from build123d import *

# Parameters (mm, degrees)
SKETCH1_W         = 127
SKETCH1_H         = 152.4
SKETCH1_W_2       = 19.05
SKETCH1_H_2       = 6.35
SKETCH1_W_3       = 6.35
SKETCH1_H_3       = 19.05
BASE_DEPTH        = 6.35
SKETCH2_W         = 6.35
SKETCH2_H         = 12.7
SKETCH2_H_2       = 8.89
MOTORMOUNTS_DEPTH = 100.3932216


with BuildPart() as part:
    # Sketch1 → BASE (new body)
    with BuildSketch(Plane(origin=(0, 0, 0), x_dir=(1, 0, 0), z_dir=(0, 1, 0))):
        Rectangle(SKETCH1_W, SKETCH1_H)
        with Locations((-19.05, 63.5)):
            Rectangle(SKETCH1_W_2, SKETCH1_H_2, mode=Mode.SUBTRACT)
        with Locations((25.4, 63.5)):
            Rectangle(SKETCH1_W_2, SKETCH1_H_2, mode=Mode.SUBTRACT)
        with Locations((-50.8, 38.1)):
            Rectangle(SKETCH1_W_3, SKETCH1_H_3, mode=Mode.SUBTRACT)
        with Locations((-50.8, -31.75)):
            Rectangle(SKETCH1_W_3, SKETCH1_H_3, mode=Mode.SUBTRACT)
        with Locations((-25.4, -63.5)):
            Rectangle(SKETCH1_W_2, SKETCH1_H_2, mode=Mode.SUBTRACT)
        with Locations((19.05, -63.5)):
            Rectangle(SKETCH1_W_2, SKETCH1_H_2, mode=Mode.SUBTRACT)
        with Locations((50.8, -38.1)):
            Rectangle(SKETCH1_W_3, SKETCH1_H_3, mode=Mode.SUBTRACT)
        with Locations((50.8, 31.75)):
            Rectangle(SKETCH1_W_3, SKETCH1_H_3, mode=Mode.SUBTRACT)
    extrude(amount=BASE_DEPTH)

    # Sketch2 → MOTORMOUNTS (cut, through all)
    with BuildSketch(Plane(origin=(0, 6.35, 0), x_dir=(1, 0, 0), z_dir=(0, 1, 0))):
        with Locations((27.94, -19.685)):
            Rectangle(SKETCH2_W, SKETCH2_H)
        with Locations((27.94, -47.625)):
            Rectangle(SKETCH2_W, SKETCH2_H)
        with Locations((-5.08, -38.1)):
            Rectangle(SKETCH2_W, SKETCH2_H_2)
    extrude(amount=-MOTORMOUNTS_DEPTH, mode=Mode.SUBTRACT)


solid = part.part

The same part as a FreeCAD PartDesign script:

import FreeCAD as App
import Part
import Sketcher
Q = App.Units.Quantity

doc = App.newDocument("Part")
body = doc.addObject("PartDesign::Body", "Body")

# Sketch on XZ plane
sketch1 = body.newObject("Sketcher::SketchObject", "Sketch")
sketch1.AttachmentSupport = (doc.getObject("XZ_Plane"), [""])
sketch1.MapMode = "FlatFace"
sketch1.addGeometry(Part.LineSegment(App.Vector(-64, -76, 0), App.Vector(-64, 76, 0)), False)
sketch1.addGeometry(Part.LineSegment(App.Vector(-64, 76, 0), App.Vector(64, 76, 0)), False)
sketch1.addGeometry(Part.LineSegment(App.Vector(64, 76, 0), App.Vector(64, -76, 0)), False)
sketch1.addGeometry(Part.LineSegment(App.Vector(64, -76, 0), App.Vector(-64, -76, 0)), False)
sketch1.addGeometry(Part.LineSegment(App.Vector(-16, 67, 0), App.Vector(-35, 67, 0)), False)
sketch1.addGeometry(Part.LineSegment(App.Vector(-35, 67, 0), App.Vector(-35, 60, 0)), False)
sketch1.addGeometry(Part.LineSegment(App.Vector(-35, 60, 0), App.Vector(-16, 60, 0)), False)
sketch1.addGeometry(Part.LineSegment(App.Vector(-16, 60, 0), App.Vector(-16, 67, 0)), False)
sketch1.addGeometry(Part.LineSegment(App.Vector(-48, 41, 0), App.Vector(-54, 41, 0)), False)
sketch1.addGeometry(Part.LineSegment(App.Vector(-54, 41, 0), App.Vector(-54, 22, 0)), False)
sketch1.addGeometry(Part.LineSegment(App.Vector(-54, 22, 0), App.Vector(-48, 22, 0)), False)
sketch1.addGeometry(Part.LineSegment(App.Vector(-48, 22, 0), App.Vector(-48, 41, 0)), False)
sketch1.addGeometry(Part.LineSegment(App.Vector(29, 67, 0), App.Vector(10, 67, 0)), False)
sketch1.addGeometry(Part.LineSegment(App.Vector(10, 67, 0), App.Vector(10, 60, 0)), False)
sketch1.addGeometry(Part.LineSegment(App.Vector(10, 60, 0), App.Vector(29, 60, 0)), False)
sketch1.addGeometry(Part.LineSegment(App.Vector(29, 60, 0), App.Vector(29, 67, 0)), False)
sketch1.addGeometry(Part.LineSegment(App.Vector(54, 48, 0), App.Vector(48, 48, 0)), False)
sketch1.addGeometry(Part.LineSegment(App.Vector(48, 48, 0), App.Vector(48, 29, 0)), False)
sketch1.addGeometry(Part.LineSegment(App.Vector(48, 29, 0), App.Vector(54, 29, 0)), False)
sketch1.addGeometry(Part.LineSegment(App.Vector(54, 29, 0), App.Vector(54, 48, 0)), False)
sketch1.addGeometry(Part.LineSegment(App.Vector(-48, -29, 0), App.Vector(-54, -29, 0)), False)
sketch1.addGeometry(Part.LineSegment(App.Vector(-54, -29, 0), App.Vector(-54, -48, 0)), False)
sketch1.addGeometry(Part.LineSegment(App.Vector(-54, -48, 0), App.Vector(-48, -48, 0)), False)
sketch1.addGeometry(Part.LineSegment(App.Vector(-48, -48, 0), App.Vector(-48, -29, 0)), False)
sketch1.addGeometry(Part.LineSegment(App.Vector(-10, -60, 0), App.Vector(-29, -60, 0)), False)
sketch1.addGeometry(Part.LineSegment(App.Vector(-29, -60, 0), App.Vector(-29, -67, 0)), False)
sketch1.addGeometry(Part.LineSegment(App.Vector(-29, -67, 0), App.Vector(-10, -67, 0)), False)
sketch1.addGeometry(Part.LineSegment(App.Vector(-10, -67, 0), App.Vector(-10, -60, 0)), False)
sketch1.addGeometry(Part.LineSegment(App.Vector(54, -22, 0), App.Vector(48, -22, 0)), False)
sketch1.addGeometry(Part.LineSegment(App.Vector(48, -22, 0), App.Vector(48, -41, 0)), False)
sketch1.addGeometry(Part.LineSegment(App.Vector(48, -41, 0), App.Vector(54, -41, 0)), False)
sketch1.addGeometry(Part.LineSegment(App.Vector(54, -41, 0), App.Vector(54, -22, 0)), False)
sketch1.addGeometry(Part.LineSegment(App.Vector(35, -60, 0), App.Vector(16, -60, 0)), False)
sketch1.addGeometry(Part.LineSegment(App.Vector(16, -60, 0), App.Vector(16, -67, 0)), False)
sketch1.addGeometry(Part.LineSegment(App.Vector(16, -67, 0), App.Vector(35, -67, 0)), False)
sketch1.addGeometry(Part.LineSegment(App.Vector(35, -67, 0), App.Vector(35, -60, 0)), False)
sketch1.addConstraint(Sketcher.Constraint("Coincident", 0, 2, 1, 1))
sketch1.addConstraint(Sketcher.Constraint("Coincident", 1, 2, 2, 1))
sketch1.addConstraint(Sketcher.Constraint("Coincident", 2, 2, 3, 1))
sketch1.addConstraint(Sketcher.Constraint("Coincident", 3, 2, 0, 1))
sketch1.addConstraint(Sketcher.Constraint("Coincident", 4, 2, 5, 1))
sketch1.addConstraint(Sketcher.Constraint("Coincident", 5, 2, 6, 1))
sketch1.addConstraint(Sketcher.Constraint("Coincident", 6, 2, 7, 1))
sketch1.addConstraint(Sketcher.Constraint("Coincident", 7, 2, 4, 1))
sketch1.addConstraint(Sketcher.Constraint("Coincident", 8, 2, 9, 1))
sketch1.addConstraint(Sketcher.Constraint("Coincident", 9, 2, 10, 1))
sketch1.addConstraint(Sketcher.Constraint("Coincident", 10, 2, 11, 1))
sketch1.addConstraint(Sketcher.Constraint("Coincident", 11, 2, 8, 1))
sketch1.addConstraint(Sketcher.Constraint("Coincident", 12, 2, 13, 1))
sketch1.addConstraint(Sketcher.Constraint("Coincident", 13, 2, 14, 1))
sketch1.addConstraint(Sketcher.Constraint("Coincident", 14, 2, 15, 1))
sketch1.addConstraint(Sketcher.Constraint("Coincident", 15, 2, 12, 1))
sketch1.addConstraint(Sketcher.Constraint("Coincident", 16, 2, 17, 1))
sketch1.addConstraint(Sketcher.Constraint("Coincident", 17, 2, 18, 1))
sketch1.addConstraint(Sketcher.Constraint("Coincident", 18, 2, 19, 1))
sketch1.addConstraint(Sketcher.Constraint("Coincident", 19, 2, 16, 1))
sketch1.addConstraint(Sketcher.Constraint("Coincident", 20, 2, 21, 1))
sketch1.addConstraint(Sketcher.Constraint("Coincident", 21, 2, 22, 1))
sketch1.addConstraint(Sketcher.Constraint("Coincident", 22, 2, 23, 1))
sketch1.addConstraint(Sketcher.Constraint("Coincident", 23, 2, 20, 1))
sketch1.addConstraint(Sketcher.Constraint("Coincident", 24, 2, 25, 1))
sketch1.addConstraint(Sketcher.Constraint("Coincident", 25, 2, 26, 1))
sketch1.addConstraint(Sketcher.Constraint("Coincident", 26, 2, 27, 1))
sketch1.addConstraint(Sketcher.Constraint("Coincident", 27, 2, 24, 1))
sketch1.addConstraint(Sketcher.Constraint("Coincident", 28, 2, 29, 1))
sketch1.addConstraint(Sketcher.Constraint("Coincident", 29, 2, 30, 1))
sketch1.addConstraint(Sketcher.Constraint("Coincident", 30, 2, 31, 1))
sketch1.addConstraint(Sketcher.Constraint("Coincident", 31, 2, 28, 1))
sketch1.addConstraint(Sketcher.Constraint("Coincident", 32, 2, 33, 1))
sketch1.addConstraint(Sketcher.Constraint("Coincident", 33, 2, 34, 1))
sketch1.addConstraint(Sketcher.Constraint("Coincident", 34, 2, 35, 1))
sketch1.addConstraint(Sketcher.Constraint("Coincident", 35, 2, 32, 1))
sketch1.addConstraint(Sketcher.Constraint("Vertical", 0))
sketch1.addConstraint(Sketcher.Constraint("Horizontal", 1))
sketch1.addConstraint(Sketcher.Constraint("Vertical", 2))
sketch1.addConstraint(Sketcher.Constraint("Horizontal", 3))
sketch1.addConstraint(Sketcher.Constraint("Horizontal", 4))
sketch1.addConstraint(Sketcher.Constraint("Vertical", 5))
sketch1.addConstraint(Sketcher.Constraint("Horizontal", 6))
sketch1.addConstraint(Sketcher.Constraint("Vertical", 7))
sketch1.addConstraint(Sketcher.Constraint("Horizontal", 8))
sketch1.addConstraint(Sketcher.Constraint("Vertical", 9))
sketch1.addConstraint(Sketcher.Constraint("Horizontal", 10))
sketch1.addConstraint(Sketcher.Constraint("Vertical", 11))
sketch1.addConstraint(Sketcher.Constraint("Horizontal", 12))
sketch1.addConstraint(Sketcher.Constraint("Vertical", 13))
sketch1.addConstraint(Sketcher.Constraint("Horizontal", 14))
sketch1.addConstraint(Sketcher.Constraint("Vertical", 15))
sketch1.addConstraint(Sketcher.Constraint("Horizontal", 16))
sketch1.addConstraint(Sketcher.Constraint("Vertical", 17))
sketch1.addConstraint(Sketcher.Constraint("Horizontal", 18))
sketch1.addConstraint(Sketcher.Constraint("Vertical", 19))
sketch1.addConstraint(Sketcher.Constraint("Horizontal", 20))
sketch1.addConstraint(Sketcher.Constraint("Vertical", 21))
sketch1.addConstraint(Sketcher.Constraint("Horizontal", 22))
sketch1.addConstraint(Sketcher.Constraint("Vertical", 23))
sketch1.addConstraint(Sketcher.Constraint("Horizontal", 24))
sketch1.addConstraint(Sketcher.Constraint("Vertical", 25))
sketch1.addConstraint(Sketcher.Constraint("Horizontal", 26))
sketch1.addConstraint(Sketcher.Constraint("Vertical", 27))
sketch1.addConstraint(Sketcher.Constraint("Horizontal", 28))
sketch1.addConstraint(Sketcher.Constraint("Vertical", 29))
sketch1.addConstraint(Sketcher.Constraint("Horizontal", 30))
sketch1.addConstraint(Sketcher.Constraint("Vertical", 31))
sketch1.addConstraint(Sketcher.Constraint("Horizontal", 32))
sketch1.addConstraint(Sketcher.Constraint("Vertical", 33))
sketch1.addConstraint(Sketcher.Constraint("Horizontal", 34))
sketch1.addConstraint(Sketcher.Constraint("Vertical", 35))
sketch1.addConstraint(Sketcher.Constraint("Symmetric", 0, 2, 2, 2, -1, 1))
sketch1.addConstraint(Sketcher.Constraint("Symmetric", 18, 2, 20, 2, -1, 1))
sketch1.addConstraint(Sketcher.Constraint("Symmetric", 16, 2, 22, 2, -1, 1))
sketch1.addConstraint(Sketcher.Constraint("Symmetric", 14, 2, 24, 2, -1, 1))
sketch1.addConstraint(Sketcher.Constraint("Symmetric", 12, 2, 26, 2, -1, 1))
sketch1.addConstraint(Sketcher.Constraint("Symmetric", 10, 2, 28, 2, -1, 1))
sketch1.addConstraint(Sketcher.Constraint("Symmetric", 8, 2, 30, 2, -1, 1))
sketch1.addConstraint(Sketcher.Constraint("Symmetric", 6, 2, 32, 2, -1, 1))
sketch1.addConstraint(Sketcher.Constraint("Symmetric", 4, 2, 34, 2, -1, 1))
sketch1.addConstraint(Sketcher.Constraint("Horizontal", 7, 2, 12, 2))
sketch1.addConstraint(Sketcher.Constraint("Horizontal", 6, 2, 13, 2))
sketch1.addConstraint(Sketcher.Constraint("Vertical", 9, 2, 20, 2))
sketch1.addConstraint(Sketcher.Constraint("Vertical", 11, 2, 22, 2))
sketch1.addConstraint(Sketcher.Constraint("Equal", 6, 12))
sketch1.addConstraint(Sketcher.Constraint("Equal", 30, 5))
sketch1.addConstraint(Sketcher.Constraint("Equal", 34, 9))
sketch1.addConstraint(Sketcher.Constraint("Equal", 11, 17))
sketch1.addConstraint(Sketcher.Constraint("DistanceX", 1, 1, 1, 2, Q("5 in")))
sketch1.addConstraint(Sketcher.Constraint("DistanceY", 0, 1, 0, 2, Q("6 in")))
sketch1.addConstraint(Sketcher.Constraint("DistanceY", 8, 2, 4, 2, Q("1 in")))
sketch1.addConstraint(Sketcher.Constraint("DistanceX", 7, 2, 12, 2, Q("1 in")))
sketch1.addConstraint(Sketcher.Constraint("DistanceX", 14, 2, 18, 2, Q("1 in")))
sketch1.addConstraint(Sketcher.Constraint("DistanceY", 20, 2, 9, 2, Q("2 in")))
sketch1.addConstraint(Sketcher.Constraint("DistanceX", 4, 2, 4, 1, Q("0.75 in")))
sketch1.addConstraint(Sketcher.Constraint("DistanceX", 8, 2, 8, 1, Q("0.25 in")))
sketch1.addConstraint(Sketcher.Constraint("DistanceX", 8, 2, 6, 2, Q("1.5 in")))
sketch1.addConstraint(Sketcher.Constraint("DistanceY", 16, 2, 14, 2, Q("0.5 in")))
pad1 = body.newObject("PartDesign::Pad", "Pad")
pad1.Profile = sketch1
pad1.Length = Q("0.25 in")
pad1.Reversed = True

# Sketch on XZ plane
sketch2 = body.newObject("Sketcher::SketchObject", "Sketch001")
sketch2.AttachmentSupport = (doc.getObject("XZ_Plane"), [""])
sketch2.MapMode = "FlatFace"
sketch2.AttachmentOffset = App.Placement(App.Vector(0, 0, -0.25 * 25.4), App.Rotation())
sketch2.addGeometry(Part.LineSegment(App.Vector(25, 13, 0), App.Vector(25, 26, 0)), False)
sketch2.addGeometry(Part.LineSegment(App.Vector(25, 26, 0), App.Vector(31, 26, 0)), False)
sketch2.addGeometry(Part.LineSegment(App.Vector(31, 26, 0), App.Vector(31, 13, 0)), False)
sketch2.addGeometry(Part.LineSegment(App.Vector(31, 13, 0), App.Vector(25, 13, 0)), False)
sketch2.addGeometry(Part.LineSegment(App.Vector(25, 41, 0), App.Vector(25, 54, 0)), False)
sketch2.addGeometry(Part.LineSegment(App.Vector(25, 54, 0), App.Vector(31, 54, 0)), False)
sketch2.addGeometry(Part.LineSegment(App.Vector(31, 54, 0), App.Vector(31, 41, 0)), False)
sketch2.addGeometry(Part.LineSegment(App.Vector(31, 41, 0), App.Vector(25, 41, 0)), False)
sketch2.addGeometry(Part.LineSegment(App.Vector(-8, 34, 0), App.Vector(-8, 43, 0)), False)
sketch2.addGeometry(Part.LineSegment(App.Vector(-8, 43, 0), App.Vector(-2, 43, 0)), False)
sketch2.addGeometry(Part.LineSegment(App.Vector(-2, 43, 0), App.Vector(-2, 34, 0)), False)
sketch2.addGeometry(Part.LineSegment(App.Vector(-2, 34, 0), App.Vector(-8, 34, 0)), False)
sketch2.addConstraint(Sketcher.Constraint("Coincident", 0, 2, 1, 1))
sketch2.addConstraint(Sketcher.Constraint("Coincident", 1, 2, 2, 1))
sketch2.addConstraint(Sketcher.Constraint("Coincident", 2, 2, 3, 1))
sketch2.addConstraint(Sketcher.Constraint("Coincident", 3, 2, 0, 1))
sketch2.addConstraint(Sketcher.Constraint("Coincident", 4, 2, 5, 1))
sketch2.addConstraint(Sketcher.Constraint("Coincident", 5, 2, 6, 1))
sketch2.addConstraint(Sketcher.Constraint("Coincident", 6, 2, 7, 1))
sketch2.addConstraint(Sketcher.Constraint("Coincident", 7, 2, 4, 1))
sketch2.addConstraint(Sketcher.Constraint("Coincident", 8, 2, 9, 1))
sketch2.addConstraint(Sketcher.Constraint("Coincident", 9, 2, 10, 1))
sketch2.addConstraint(Sketcher.Constraint("Coincident", 10, 2, 11, 1))
sketch2.addConstraint(Sketcher.Constraint("Coincident", 11, 2, 8, 1))
sketch2.addConstraint(Sketcher.Constraint("Vertical", 0))
sketch2.addConstraint(Sketcher.Constraint("Horizontal", 1))
sketch2.addConstraint(Sketcher.Constraint("Vertical", 2))
sketch2.addConstraint(Sketcher.Constraint("Horizontal", 3))
sketch2.addConstraint(Sketcher.Constraint("Vertical", 4))
sketch2.addConstraint(Sketcher.Constraint("Horizontal", 5))
sketch2.addConstraint(Sketcher.Constraint("Vertical", 6))
sketch2.addConstraint(Sketcher.Constraint("Horizontal", 7))
sketch2.addConstraint(Sketcher.Constraint("Vertical", 8))
sketch2.addConstraint(Sketcher.Constraint("Horizontal", 9))
sketch2.addConstraint(Sketcher.Constraint("Vertical", 10))
sketch2.addConstraint(Sketcher.Constraint("Horizontal", 11))
sketch2.addConstraint(Sketcher.Constraint("Vertical", 3, 2, 4, 2))
sketch2.addConstraint(Sketcher.Constraint("Vertical", 2, 2, 5, 2))
sketch2.addConstraint(Sketcher.Constraint("Equal", 7, 9))
sketch2.addConstraint(Sketcher.Constraint("Equal", 2, 4))
sketch2.addConstraint(Sketcher.Constraint("DistanceY", 0, 1, 0, 2, Q("0.5 in")))
sketch2.addConstraint(Sketcher.Constraint("DistanceX", 1, 1, 1, 2, Q("0.25 in")))
sketch2.addConstraint(Sketcher.Constraint("DistanceY", 8, 1, 8, 2, Q("0.35 in")))
sketch2.addConstraint(Sketcher.Constraint("DistanceY", 0, 2, 4, 2, Q("1.1 in")))
sketch2.addConstraint(Sketcher.Constraint("DistanceX", 8, 2, 7, 2, Q("1.3 in")))
sketch2.addConstraint(Sketcher.Constraint("DistanceY", 0, 2, 10, 2, Q("0.3 in")))
sketch2.addConstraint(Sketcher.Constraint("DistanceX", -1, 1, 0, 2, Q("0.975 in")))
sketch2.addConstraint(Sketcher.Constraint("DistanceY", -1, 1, 0, 2, Q("1.025 in")))
pocket1 = body.newObject("PartDesign::Pocket", "Pocket")
pocket1.Profile = sketch2
pocket1.Type = "ThroughAll"
pocket1.Reversed = True

doc.recompute()
